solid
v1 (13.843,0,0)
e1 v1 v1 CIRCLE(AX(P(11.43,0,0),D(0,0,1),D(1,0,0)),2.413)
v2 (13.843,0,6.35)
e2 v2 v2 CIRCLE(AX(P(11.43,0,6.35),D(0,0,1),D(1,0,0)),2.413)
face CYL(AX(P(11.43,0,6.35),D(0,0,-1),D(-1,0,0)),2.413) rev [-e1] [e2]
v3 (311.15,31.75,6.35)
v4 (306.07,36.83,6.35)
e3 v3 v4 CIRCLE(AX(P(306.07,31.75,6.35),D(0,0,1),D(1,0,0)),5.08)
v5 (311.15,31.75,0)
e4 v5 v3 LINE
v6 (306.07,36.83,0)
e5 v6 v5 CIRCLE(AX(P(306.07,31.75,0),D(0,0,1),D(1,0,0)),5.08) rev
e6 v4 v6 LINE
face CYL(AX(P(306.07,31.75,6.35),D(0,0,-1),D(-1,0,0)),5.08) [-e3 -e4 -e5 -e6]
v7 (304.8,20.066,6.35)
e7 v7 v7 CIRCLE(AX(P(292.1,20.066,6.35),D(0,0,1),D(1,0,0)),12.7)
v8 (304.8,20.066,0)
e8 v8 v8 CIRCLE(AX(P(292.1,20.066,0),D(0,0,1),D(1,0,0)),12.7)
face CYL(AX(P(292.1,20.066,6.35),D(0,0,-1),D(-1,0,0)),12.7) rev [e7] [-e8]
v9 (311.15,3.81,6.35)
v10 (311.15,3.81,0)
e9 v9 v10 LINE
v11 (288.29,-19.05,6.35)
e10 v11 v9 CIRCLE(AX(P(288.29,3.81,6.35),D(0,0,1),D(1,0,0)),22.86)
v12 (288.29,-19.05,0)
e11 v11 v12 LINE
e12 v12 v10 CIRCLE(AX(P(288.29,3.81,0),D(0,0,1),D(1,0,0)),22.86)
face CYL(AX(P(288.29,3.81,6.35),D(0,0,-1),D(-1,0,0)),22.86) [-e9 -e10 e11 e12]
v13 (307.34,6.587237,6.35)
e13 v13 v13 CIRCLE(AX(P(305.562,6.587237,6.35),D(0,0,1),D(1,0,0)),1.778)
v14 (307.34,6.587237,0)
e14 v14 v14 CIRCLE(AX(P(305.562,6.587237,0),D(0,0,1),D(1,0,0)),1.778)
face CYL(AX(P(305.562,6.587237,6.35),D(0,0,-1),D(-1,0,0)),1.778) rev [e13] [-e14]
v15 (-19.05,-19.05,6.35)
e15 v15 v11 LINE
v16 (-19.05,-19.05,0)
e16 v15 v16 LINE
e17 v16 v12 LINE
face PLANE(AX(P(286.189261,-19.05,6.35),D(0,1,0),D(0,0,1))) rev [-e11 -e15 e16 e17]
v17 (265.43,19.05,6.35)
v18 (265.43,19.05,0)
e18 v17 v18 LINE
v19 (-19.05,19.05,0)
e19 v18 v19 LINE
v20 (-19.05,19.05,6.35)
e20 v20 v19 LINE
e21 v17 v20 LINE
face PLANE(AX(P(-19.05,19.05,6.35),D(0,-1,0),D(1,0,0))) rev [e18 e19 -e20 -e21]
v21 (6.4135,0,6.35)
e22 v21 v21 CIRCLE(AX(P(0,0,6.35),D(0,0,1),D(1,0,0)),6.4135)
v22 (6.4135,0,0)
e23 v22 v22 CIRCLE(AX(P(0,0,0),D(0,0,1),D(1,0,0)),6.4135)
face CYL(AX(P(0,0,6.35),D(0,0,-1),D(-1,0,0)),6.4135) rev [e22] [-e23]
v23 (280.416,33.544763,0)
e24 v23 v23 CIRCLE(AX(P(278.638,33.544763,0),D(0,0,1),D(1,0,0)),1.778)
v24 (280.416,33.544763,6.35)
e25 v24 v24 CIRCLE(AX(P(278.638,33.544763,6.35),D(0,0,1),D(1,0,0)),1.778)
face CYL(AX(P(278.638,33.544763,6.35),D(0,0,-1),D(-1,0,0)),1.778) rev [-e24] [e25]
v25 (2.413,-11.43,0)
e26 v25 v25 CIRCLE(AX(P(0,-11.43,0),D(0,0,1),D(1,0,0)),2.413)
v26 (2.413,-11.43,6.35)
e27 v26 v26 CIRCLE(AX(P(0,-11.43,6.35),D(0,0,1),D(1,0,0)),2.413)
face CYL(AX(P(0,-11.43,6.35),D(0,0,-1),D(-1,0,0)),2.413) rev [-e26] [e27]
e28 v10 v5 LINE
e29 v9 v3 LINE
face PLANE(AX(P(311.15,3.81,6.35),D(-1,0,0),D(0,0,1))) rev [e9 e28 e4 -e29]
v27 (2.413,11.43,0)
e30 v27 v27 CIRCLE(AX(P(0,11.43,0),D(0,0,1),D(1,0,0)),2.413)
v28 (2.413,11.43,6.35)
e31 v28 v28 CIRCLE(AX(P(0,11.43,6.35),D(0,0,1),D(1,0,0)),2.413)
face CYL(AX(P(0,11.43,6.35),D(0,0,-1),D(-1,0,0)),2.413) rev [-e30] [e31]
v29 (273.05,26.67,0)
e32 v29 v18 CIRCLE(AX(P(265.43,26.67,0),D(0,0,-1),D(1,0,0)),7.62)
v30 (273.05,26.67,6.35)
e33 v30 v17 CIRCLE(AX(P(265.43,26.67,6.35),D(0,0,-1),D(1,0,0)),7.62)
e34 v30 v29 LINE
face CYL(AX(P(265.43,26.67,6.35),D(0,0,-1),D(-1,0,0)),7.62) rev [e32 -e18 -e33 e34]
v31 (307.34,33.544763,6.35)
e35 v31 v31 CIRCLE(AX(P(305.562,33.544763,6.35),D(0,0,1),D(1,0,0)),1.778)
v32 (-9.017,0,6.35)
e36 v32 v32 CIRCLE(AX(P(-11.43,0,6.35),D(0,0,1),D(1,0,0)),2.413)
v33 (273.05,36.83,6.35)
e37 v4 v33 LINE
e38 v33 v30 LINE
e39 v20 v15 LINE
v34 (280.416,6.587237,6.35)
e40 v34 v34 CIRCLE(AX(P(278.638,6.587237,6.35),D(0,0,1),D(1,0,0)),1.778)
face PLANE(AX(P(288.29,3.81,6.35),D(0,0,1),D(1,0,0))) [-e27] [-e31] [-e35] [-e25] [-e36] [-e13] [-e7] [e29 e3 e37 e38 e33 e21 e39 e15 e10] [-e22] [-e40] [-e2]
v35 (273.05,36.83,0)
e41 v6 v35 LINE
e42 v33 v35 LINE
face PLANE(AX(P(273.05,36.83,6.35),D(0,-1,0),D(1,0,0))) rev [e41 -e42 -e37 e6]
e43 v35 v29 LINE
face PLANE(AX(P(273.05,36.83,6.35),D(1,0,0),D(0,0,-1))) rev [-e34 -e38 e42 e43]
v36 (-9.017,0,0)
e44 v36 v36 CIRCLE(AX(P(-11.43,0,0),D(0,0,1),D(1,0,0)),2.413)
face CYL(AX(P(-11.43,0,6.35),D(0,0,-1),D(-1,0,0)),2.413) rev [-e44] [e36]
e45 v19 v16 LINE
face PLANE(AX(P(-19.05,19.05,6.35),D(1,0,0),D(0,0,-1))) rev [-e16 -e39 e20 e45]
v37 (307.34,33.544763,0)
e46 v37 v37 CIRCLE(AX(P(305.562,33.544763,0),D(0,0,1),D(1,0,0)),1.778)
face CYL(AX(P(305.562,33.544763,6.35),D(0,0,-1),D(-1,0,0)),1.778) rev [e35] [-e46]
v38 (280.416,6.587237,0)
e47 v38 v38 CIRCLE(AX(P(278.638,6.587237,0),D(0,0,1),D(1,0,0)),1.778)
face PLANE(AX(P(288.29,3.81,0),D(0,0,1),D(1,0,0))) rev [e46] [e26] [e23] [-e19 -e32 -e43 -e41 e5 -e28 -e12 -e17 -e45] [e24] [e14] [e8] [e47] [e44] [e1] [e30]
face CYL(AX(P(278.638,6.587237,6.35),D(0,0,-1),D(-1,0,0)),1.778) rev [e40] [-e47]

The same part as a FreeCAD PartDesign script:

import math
import FreeCAD as App
import Part
import Sketcher
Q = App.Units.Quantity


def edges_at(feature, points):
    """Names of the edges that pass closest to the given points."""
    edges = feature.Shape.Edges
    near = lambda p: min(range(len(edges)), key=lambda i: edges[i].distToShape(Part.Vertex(*p))[0])
    return sorted({f"Edge{near(p) + 1}" for p in points})

doc = App.newDocument("Part")
params = doc.addObject("Spreadsheet::Sheet", "Params")
for row, (alias, value) in enumerate([
    ("sketch1_diameter", "1 in"),
    ("sketch1_radius", "0.9 in"),
    ("sketch1_radius2", "0.3 in"),
    ("sketch1_diameter2", "0.14 in"),
    ("sketch1_diameter3", "0.19 in"),
    ("pad1_length", "0.25 in"),
    ("fillet_radius", "0.2 in"),
], start=1):
    params.set(f"A{row}", alias)
    params.set(f"B{row}", "=" + value)
    params.setAlias(f"B{row}", alias)

body = doc.addObject("PartDesign::Body", "Body")

# Sketch on XY plane
sketch1 = doc.addObject("Sketcher::SketchObject", "Sketch")
body.addObject(sketch1)
sketch1.AttachmentSupport = (doc.XY_Plane, [""])
sketch1.MapMode = "FlatFace"
sketch1.addGeometry(Part.LineSegment(App.Vector(265.4, 19.1, 0), App.Vector(-19.1, 19.1, 0)), False)
sketch1.addGeometry(Part.LineSegment(App.Vector(-19.1, 19.1, 0), App.Vector(-19.1, -19.1, 0)), False)
sketch1.addGeometry(Part.LineSegment(App.Vector(-19.1, -19.1, 0), App.Vector(288.3, -19.1, 0)), False)
sketch1.addGeometry(Part.ArcOfCircle(Part.Circle(App.Vector(288.3, 3.8, 0), App.Vector(0, 0, 1), 22.9), math.radians(-90), math.radians(0)), False)
sketch1.addGeometry(Part.LineSegment(App.Vector(311.1, 3.8, 0), App.Vector(311.1, 36.8, 0)), False)
sketch1.addGeometry(Part.LineSegment(App.Vector(311.1, 36.8, 0), App.Vector(273.1, 36.8, 0)), False)
sketch1.addGeometry(Part.LineSegment(App.Vector(273.1, 36.8, 0), App.Vector(273.1, 26.7, 0)), False)
sketch1.addGeometry(Part.ArcOfCircle(Part.Circle(App.Vector(265.4, 26.7, 0), App.Vector(0, 0, 1), 7.6), math.radians(-90), math.radians(0)), False)
sketch1.addGeometry(Part.Circle(App.Vector(305.6, 6.6, 0), App.Vector(0, 0, 1), 1.8), False)
sketch1.addGeometry(Part.Circle(App.Vector(278.6, 6.6, 0), App.Vector(0, 0, 1), 1.8), False)
sketch1.addGeometry(Part.Circle(App.Vector(0, -11.4, 0), App.Vector(0, 0, 1), 2.4), False)
sketch1.addGeometry(Part.Circle(App.Vector(11.4, 0, 0), App.Vector(0, 0, 1), 2.4), False)
sketch1.addGeometry(Part.Circle(App.Vector(0, 0, 0), App.Vector(0, 0, 1), 6.4), False)
sketch1.addGeometry(Part.Circle(App.Vector(-11.4, 0, 0), App.Vector(0, 0, 1), 2.4), False)
sketch1.addGeometry(Part.Circle(App.Vector(292.1, 20.1, 0), App.Vector(0, 0, 1), 12.7), False)
sketch1.addGeometry(Part.Circle(App.Vector(305.6, 33.5, 0), App.Vector(0, 0, 1), 1.8), False)
sketch1.addGeometry(Part.Circle(App.Vector(278.6, 33.5, 0), App.Vector(0, 0, 1), 1.8), False)
sketch1.addGeometry(Part.Circle(App.Vector(0, 11.4, 0), App.Vector(0, 0, 1), 2.4), False)
sketch1.addConstraint(Sketcher.Constraint("Coincident", 0, 2, 1, 1))
sketch1.addConstraint(Sketcher.Constraint("Coincident", 1, 2, 2, 1))
sketch1.addConstraint(Sketcher.Constraint("Tangent", 2, 2, 3, 1))
sketch1.addConstraint(Sketcher.Constraint("Tangent", 3, 2, 4, 1))
sketch1.addConstraint(Sketcher.Constraint("Coincident", 4, 2, 5, 1))
sketch1.addConstraint(Sketcher.Constraint("Coincident", 5, 2, 6, 1))
sketch1.addConstraint(Sketcher.Constraint("Tangent", 6, 2, 7, 2))
sketch1.addConstraint(Sketcher.Constraint("Tangent", 7, 1, 0, 1))
sketch1.addConstraint(Sketcher.Constraint("Horizontal", 0))
sketch1.addConstraint(Sketcher.Constraint("Vertical", 1))
sketch1.addConstraint(Sketcher.Constraint("Horizontal", 2))
sketch1.addConstraint(Sketcher.Constraint("Vertical", 4))
sketch1.addConstraint(Sketcher.Constraint("Horizontal", 5))
sketch1.addConstraint(Sketcher.Constraint("Vertical", 6))
sketch1.addConstraint(Sketcher.Constraint("Coincident", 12, 3, -1, 1))
sketch1.addConstraint(Sketcher.Constraint("Equal", 8, 9))
sketch1.addConstraint(Sketcher.Constraint("Equal", 10, 11))
sketch1.addConstraint(Sketcher.Constraint("Equal", 11, 13))
sketch1.addConstraint(Sketcher.Constraint("Equal", 9, 15))
sketch1.addConstraint(Sketcher.Constraint("Equal", 15, 16))
sketch1.addConstraint(Sketcher.Constraint("Equal", 13, 17))
sketch1.addConstraint(Sketcher.Constraint("Symmetric", 11, 3, 13, 3, -1, 1))
sketch1.addConstraint(Sketcher.Constraint("Symmetric", 10, 3, 17, 3, -1, 1))
sketch1.addConstraint(Sketcher.Constraint("PointOnObject", 10, 3, -2))
sketch1.addConstraint(Sketcher.Constraint("PointOnObject", 11, 3, -1))
sketch1.addConstraint(Sketcher.Constraint("Horizontal", 8, 3, 9, 3))
sketch1.addConstraint(Sketcher.Constraint("Horizontal", 15, 3, 16, 3))
sketch1.addConstraint(Sketcher.Constraint("Vertical", 8, 3, 15, 3))
sketch1.addConstraint(Sketcher.Constraint("Vertical", 9, 3, 16, 3))
sketch1.addConstraint(Sketcher.Constraint("Equal", 5, 1))
sketch1.addConstraint(Sketcher.Constraint("Diameter", 14, Q("1 in")))
sketch1.addConstraint(Sketcher.Constraint("Radius", 3, Q("0.9 in")))
sketch1.addConstraint(Sketcher.Constraint("Radius", 7, Q("0.3 in")))
sketch1.addConstraint(Sketcher.Constraint("Diameter", 8, Q("0.14 in")))
sketch1.addConstraint(Sketcher.Constraint("Diameter", 10, Q("0.19 in")))
sketch1.addConstraint(Sketcher.Constraint("Diameter", 12, Q("0.505 in")))
sketch1.addConstraint(Sketcher.Constraint("DistanceX", 0, 2, 0, 1, Q("11.2 in")))
sketch1.addConstraint(Sketcher.Constraint("DistanceX", 2, 1, 2, 2, Q("12.1 in")))
sketch1.addConstraint(Sketcher.Constraint("DistanceY", 4, 1, 4, 2, Q("1.3 in")))
sketch1.addConstraint(Sketcher.Constraint("DistanceX", 11, 3, 7, 3, Q("10 in")))
sketch1.addConstraint(Sketcher.Constraint("DistanceX", -1, 1, 14, 3, Q("11.5 in")))
sketch1.addConstraint(Sketcher.Constraint("DistanceY", 10, 3, 7, 3, Q("1.5 in")))
sketch1.addConstraint(Sketcher.Constraint("DistanceX", 13, 3, 11, 3, Q("0.9 in")))
sketch1.addConstraint(Sketcher.Constraint("DistanceY", 10, 3, 17, 3, Q("0.9 in")))
sketch1.addConstraint(Sketcher.Constraint("DistanceX", -1, 1, 8, 3, Q("12.03 in")))
sketch1.addConstraint(Sketcher.Constraint("DistanceX", -1, 1, 9, 3, Q("10.97 in")))
sketch1.addConstraint(Sketcher.Constraint("DistanceY", -1, 1, 14, 3, Q("0.79 in")))
sketch1.addConstraint(Sketcher.Constraint("DistanceY", -1, 1, 8, 3, 6.587237))
sketch1.addConstraint(Sketcher.Constraint("DistanceY", -1, 1, 15, 3, 33.544763))
sketch1.setExpression("Constraints[30]", "Params.sketch1_diameter")
sketch1.setExpression("Constraints[31]", "Params.sketch1_radius")
sketch1.setExpression("Constraints[32]", "Params.sketch1_radius2")
sketch1.setExpression("Constraints[33]", "Params.sketch1_diameter2")
sketch1.setExpression("Constraints[34]", "Params.sketch1_diameter3")
pad1 = doc.addObject("PartDesign::Pad", "Pad")
body.addObject(pad1)
pad1.Profile = sketch1
pad1.setExpression("Length", "Params.pad1_length")
doc.recompute()

fillet = doc.addObject("PartDesign::Fillet", "Fillet")
body.addObject(fillet)
fillet.Base = (pad1, edges_at(pad1, [(311.15, 36.83, 3.175)]))
fillet.setExpression("Radius", "Params.fillet_radius")

doc.recompute()
